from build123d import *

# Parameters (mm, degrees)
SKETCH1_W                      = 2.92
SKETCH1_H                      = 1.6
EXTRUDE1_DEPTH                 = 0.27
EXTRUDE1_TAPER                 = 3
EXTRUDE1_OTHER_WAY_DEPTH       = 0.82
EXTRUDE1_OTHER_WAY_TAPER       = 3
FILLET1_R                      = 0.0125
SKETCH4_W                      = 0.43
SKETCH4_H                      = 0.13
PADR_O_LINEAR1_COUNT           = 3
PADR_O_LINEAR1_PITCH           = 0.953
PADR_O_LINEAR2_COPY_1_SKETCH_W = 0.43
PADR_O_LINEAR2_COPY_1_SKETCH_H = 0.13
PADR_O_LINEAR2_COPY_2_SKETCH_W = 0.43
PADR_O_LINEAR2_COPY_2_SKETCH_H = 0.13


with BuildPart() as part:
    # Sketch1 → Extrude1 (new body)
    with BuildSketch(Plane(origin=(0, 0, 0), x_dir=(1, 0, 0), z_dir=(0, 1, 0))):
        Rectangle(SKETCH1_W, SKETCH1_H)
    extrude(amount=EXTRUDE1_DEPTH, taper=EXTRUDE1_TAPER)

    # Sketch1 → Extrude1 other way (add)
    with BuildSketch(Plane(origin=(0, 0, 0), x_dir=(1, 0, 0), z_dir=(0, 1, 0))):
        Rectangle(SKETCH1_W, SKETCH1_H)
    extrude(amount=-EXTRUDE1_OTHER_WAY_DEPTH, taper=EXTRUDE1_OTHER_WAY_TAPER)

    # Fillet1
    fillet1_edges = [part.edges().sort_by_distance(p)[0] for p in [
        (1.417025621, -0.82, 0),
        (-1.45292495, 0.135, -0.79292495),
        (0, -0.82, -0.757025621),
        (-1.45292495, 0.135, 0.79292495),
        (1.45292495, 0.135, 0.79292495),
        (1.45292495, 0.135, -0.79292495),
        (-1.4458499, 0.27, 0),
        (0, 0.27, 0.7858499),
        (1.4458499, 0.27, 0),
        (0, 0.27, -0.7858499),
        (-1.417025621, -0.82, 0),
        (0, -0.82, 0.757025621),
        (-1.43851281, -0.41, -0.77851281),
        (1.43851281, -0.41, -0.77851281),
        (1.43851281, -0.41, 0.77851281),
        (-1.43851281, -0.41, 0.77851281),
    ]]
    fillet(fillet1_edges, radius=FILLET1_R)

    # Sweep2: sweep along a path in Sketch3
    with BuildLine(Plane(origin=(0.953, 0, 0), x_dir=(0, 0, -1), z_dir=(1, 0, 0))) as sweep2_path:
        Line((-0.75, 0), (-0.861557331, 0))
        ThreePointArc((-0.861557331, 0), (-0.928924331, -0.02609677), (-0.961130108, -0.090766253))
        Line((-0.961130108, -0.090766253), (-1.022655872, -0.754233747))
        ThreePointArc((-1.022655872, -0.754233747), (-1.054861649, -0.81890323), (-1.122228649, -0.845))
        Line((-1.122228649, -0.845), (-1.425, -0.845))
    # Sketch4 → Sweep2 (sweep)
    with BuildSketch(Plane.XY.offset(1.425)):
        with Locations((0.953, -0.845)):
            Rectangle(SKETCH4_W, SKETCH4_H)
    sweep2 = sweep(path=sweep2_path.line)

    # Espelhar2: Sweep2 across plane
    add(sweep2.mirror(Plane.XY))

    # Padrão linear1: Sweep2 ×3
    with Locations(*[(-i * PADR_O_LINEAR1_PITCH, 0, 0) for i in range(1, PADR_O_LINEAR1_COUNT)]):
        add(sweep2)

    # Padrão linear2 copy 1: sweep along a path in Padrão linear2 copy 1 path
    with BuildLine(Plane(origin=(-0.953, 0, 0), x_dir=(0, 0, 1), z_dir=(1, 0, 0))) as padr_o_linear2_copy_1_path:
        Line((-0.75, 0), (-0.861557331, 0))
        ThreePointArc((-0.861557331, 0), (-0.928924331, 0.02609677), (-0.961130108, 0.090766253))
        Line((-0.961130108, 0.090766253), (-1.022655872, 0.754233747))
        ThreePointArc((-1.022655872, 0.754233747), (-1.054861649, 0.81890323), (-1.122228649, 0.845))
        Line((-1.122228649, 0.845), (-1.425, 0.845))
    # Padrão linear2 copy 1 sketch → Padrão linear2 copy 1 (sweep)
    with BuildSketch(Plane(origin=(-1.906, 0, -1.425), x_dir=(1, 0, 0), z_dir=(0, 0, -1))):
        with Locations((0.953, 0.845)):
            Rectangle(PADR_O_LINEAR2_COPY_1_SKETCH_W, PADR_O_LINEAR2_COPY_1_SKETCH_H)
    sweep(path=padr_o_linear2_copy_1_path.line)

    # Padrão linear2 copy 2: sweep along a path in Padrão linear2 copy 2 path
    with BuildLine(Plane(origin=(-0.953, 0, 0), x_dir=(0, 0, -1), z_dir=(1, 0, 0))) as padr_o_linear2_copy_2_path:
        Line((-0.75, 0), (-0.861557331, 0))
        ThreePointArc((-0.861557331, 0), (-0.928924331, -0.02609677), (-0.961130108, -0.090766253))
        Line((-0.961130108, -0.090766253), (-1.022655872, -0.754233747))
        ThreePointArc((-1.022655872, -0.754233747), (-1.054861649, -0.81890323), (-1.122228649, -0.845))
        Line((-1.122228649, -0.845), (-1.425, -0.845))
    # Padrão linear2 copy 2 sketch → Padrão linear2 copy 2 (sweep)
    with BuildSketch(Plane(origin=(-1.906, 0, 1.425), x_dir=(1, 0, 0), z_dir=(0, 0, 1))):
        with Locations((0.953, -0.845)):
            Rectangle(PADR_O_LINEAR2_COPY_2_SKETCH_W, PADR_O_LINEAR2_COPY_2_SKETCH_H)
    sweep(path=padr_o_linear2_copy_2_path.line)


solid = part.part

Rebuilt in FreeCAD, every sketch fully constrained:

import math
import FreeCAD as App
import Part
import Sketcher
from FreeCAD import Vector
Q = App.Units.Quantity


def add_polygon(sketch, points):
    """Adds a closed chain of lines whose ends are joined by coincident constraints."""
    first, n = sketch.GeometryCount, len(points)
    for a, b in zip(points, points[1:] + points[:1]):
        sketch.addGeometry(Part.LineSegment(App.Vector(*a, 0), App.Vector(*b, 0)), False)
    for i in range(n):
        sketch.addConstraint(Sketcher.Constraint("Coincident", first + i, 2, first + (i + 1) % n, 1))

doc = App.newDocument("Part")
body = doc.addObject("PartDesign::Body", "Body")

# Sketch on XZ plane
sketch1 = doc.addObject("Sketcher::SketchObject", "Sketch")
body.addObject(sketch1)
sketch1.AttachmentSupport = (doc.XZ_Plane, [""])
sketch1.MapMode = "FlatFace"
add_polygon(sketch1, [(-1.5, -0.8), (-1.5, 0.8), (1.5, 0.8), (1.5, -0.8)])  # lines 0-3
sketch1.addConstraint(Sketcher.Constraint("Vertical", 0))
sketch1.addConstraint(Sketcher.Constraint("Horizontal", 1))
sketch1.addConstraint(Sketcher.Constraint("Vertical", 2))
sketch1.addConstraint(Sketcher.Constraint("Horizontal", 3))
sketch1.addConstraint(Sketcher.Constraint("Symmetric", 0, 2, 2, 2, -1, 1))
sketch1.addConstraint(Sketcher.Constraint("DistanceY", 0, 1, 0, 2, Q("1.6 mm")))
sketch1.addConstraint(Sketcher.Constraint("DistanceX", 1, 1, 1, 2, Q("2.92 mm")))
pad1 = doc.addObject("PartDesign::Pad", "Pad")
body.addObject(pad1)
pad1.Profile = sketch1
pad1.Length = 0.27
pad1.Reversed = True
pad1.TaperAngle = -3

# Sketch on XZ plane
sketch2 = doc.addObject("Sketcher::SketchObject", "Sketch001")
body.addObject(sketch2)
sketch2.AttachmentSupport = (doc.XZ_Plane, [""])
sketch2.MapMode = "FlatFace"
add_polygon(sketch2, [(-1.5, -0.8), (-1.5, 0.8), (1.5, 0.8), (1.5, -0.8)])  # lines 0-3
sketch2.addConstraint(Sketcher.Constraint("Vertical", 0))
sketch2.addConstraint(Sketcher.Constraint("Horizontal", 1))
sketch2.addConstraint(Sketcher.Constraint("Vertical", 2))
sketch2.addConstraint(Sketcher.Constraint("Horizontal", 3))
sketch2.addConstraint(Sketcher.Constraint("Symmetric", 0, 2, 2, 2, -1, 1))
sketch2.addConstraint(Sketcher.Constraint("DistanceY", 0, 1, 0, 2, Q("1.6 mm")))
sketch2.addConstraint(Sketcher.Constraint("DistanceX", 1, 1, 1, 2, Q("2.92 mm")))
pad2 = doc.addObject("PartDesign::Pad", "Pad001")
body.addObject(pad2)
pad2.Profile = sketch2
pad2.Length = 0.82
pad2.TaperAngle = -3
doc.recompute()

fillet = doc.addObject("PartDesign::Fillet", "Fillet")
body.addObject(fillet)
fillet.Base = (pad2, ["Edge1"])
fillet.UseAllEdges = True
fillet.Radius = 0.0125

# Sketch on XY plane
sketch3 = doc.addObject("Sketcher::SketchObject", "Sketch002")
body.addObject(sketch3)
sketch3.AttachmentSupport = (doc.XY_Plane, [""])
sketch3.MapMode = "FlatFace"
sketch3.AttachmentOffset = App.Placement(Vector(0, 0, 1.425), App.Rotation())
add_polygon(sketch3, [(0.74, -0.78), (0.74, -0.91), (1.17, -0.91), (1.17, -0.78)])  # lines 0-3
sketch3.addConstraint(Sketcher.Constraint("Vertical", 0))
sketch3.addConstraint(Sketcher.Constraint("Horizontal", 1))
sketch3.addConstraint(Sketcher.Constraint("Vertical", 2))
sketch3.addConstraint(Sketcher.Constraint("Horizontal", 3))
sketch3.addConstraint(Sketcher.Constraint("DistanceX", 1, 1, 1, 2, Q("0.43 mm")))
sketch3.addConstraint(Sketcher.Constraint("DistanceY", 0, 2, 0, 1, Q("0.13 mm")))
sketch3.addConstraint(Sketcher.Constraint("DistanceY", 0, 2, -1, 1, Q("0.91 mm")))
sketch3.addConstraint(Sketcher.Constraint("DistanceX", -1, 1, 0, 2, Q("0.738 mm")))

# Sketch on YZ plane
sketch4 = doc.addObject("Sketcher::SketchObject", "Sketch003")
body.addObject(sketch4)
sketch4.AttachmentSupport = (doc.YZ_Plane, [""])
sketch4.MapMode = "FlatFace"
sketch4.AttachmentOffset = App.Placement(Vector(0, 0, 0.953), App.Rotation())
sketch4.addGeometry(Part.LineSegment(Vector(0, 0.75, 0), Vector(0, 0.86, 0)), False)
sketch4.addGeometry(Part.ArcOfCircle(Part.Circle(Vector(-0.1, 0.86, 0), Vector(0, 0, 1), 0.1), math.radians(0), math.radians(85)), False)
sketch4.addGeometry(Part.LineSegment(Vector(-0.09, 0.96, 0), Vector(-0.75, 1.02, 0)), False)
sketch4.addGeometry(Part.ArcOfCircle(Part.Circle(Vector(-0.75, 1.12, 0), Vector(0, 0, 1), 0.1), math.radians(180), math.radians(265)), False)
sketch4.addGeometry(Part.LineSegment(Vector(-0.84, 1.12, 0), Vector(-0.84, 1.43, 0)), False)
sketch4.addConstraint(Sketcher.Constraint("Tangent", 0, 2, 1, 1))
sketch4.addConstraint(Sketcher.Constraint("Tangent", 1, 2, 2, 1))
sketch4.addConstraint(Sketcher.Constraint("Tangent", 2, 2, 3, 2))
sketch4.addConstraint(Sketcher.Constraint("Tangent", 3, 1, 4, 1))
sketch4.addConstraint(Sketcher.Constraint("Vertical", 0))
sketch4.addConstraint(Sketcher.Constraint("Vertical", 4))
sketch4.addConstraint(Sketcher.Constraint("Equal", 1, 3))
sketch4.addConstraint(Sketcher.Constraint("PointOnObject", 0, 1, -2))
sketch4.addConstraint(Sketcher.Constraint("Radius", 1, Q("0.1 mm")))
sketch4.addConstraint(Sketcher.Constraint("DistanceY", -1, 1, 0, 1, Q("0.75 mm")))
sketch4.addConstraint(Sketcher.Constraint("DistanceX", 3, 3, -1, 1, Q("0.745 mm")))
sketch4.addConstraint(Sketcher.Constraint("DistanceY", -1, 1, 4, 2, Q("1.425 mm")))
sketch4.addConstraint(Sketcher.Constraint("DistanceY", 4, 1, 4, 2, Q("0.302771 mm")))
sketch4.addConstraint(Sketcher.Constraint("DistanceY", 1, 2, 3, 3, Q("0.161099 mm")))
doc.recompute()

additivepipe = doc.addObject("PartDesign::AdditivePipe", "AdditivePipe")
body.addObject(additivepipe)
additivepipe.Profile = sketch3
additivepipe.Spine = (sketch4, ["Edge1", "Edge2", "Edge3", "Edge4", "Edge5"])
doc.recompute()

mirrored = doc.addObject("PartDesign::Mirrored", "Mirrored")
body.addObject(mirrored)
mirrored.Originals = [additivepipe]
mirrored.MirrorPlane = (doc.XY_Plane, [""])
body.Tip = mirrored
doc.recompute()

linearpattern = doc.addObject("PartDesign::LinearPattern", "LinearPattern")
body.addObject(linearpattern)
linearpattern.Originals = [additivepipe]
linearpattern.Direction = (doc.X_Axis, [""])
linearpattern.Mode = "offset"
linearpattern.Offset = 0.953
linearpattern.Occurrences = 3
linearpattern.Reversed = True
body.Tip = linearpattern

# Sketch on XY plane
sketch5 = doc.addObject("Sketcher::SketchObject", "Sketch004")
body.addObject(sketch5)
sketch5.AttachmentSupport = (doc.XY_Plane, [""])
sketch5.MapMode = "FlatFace"
sketch5.AttachmentOffset = App.Placement(Vector(0, 0, -1.425), App.Rotation())
add_polygon(sketch5, [(-1.17, -0.91), (-1.17, -0.78), (-0.74, -0.78), (-0.74, -0.91)])  # lines 0-3
sketch5.addConstraint(Sketcher.Constraint("Vertical", 0))
sketch5.addConstraint(Sketcher.Constraint("Horizontal", 1))
sketch5.addConstraint(Sketcher.Constraint("Vertical", 2))
sketch5.addConstraint(Sketcher.Constraint("Horizontal", 3))
sketch5.addConstraint(Sketcher.Constraint("DistanceX", 1, 1, 1, 2, Q("0.43 mm")))
sketch5.addConstraint(Sketcher.Constraint("DistanceY", 0, 1, 0, 2, Q("0.13 mm")))
sketch5.addConstraint(Sketcher.Constraint("DistanceY", 0, 2, -1, 1, Q("0.78 mm")))
sketch5.addConstraint(Sketcher.Constraint("DistanceX", 0, 2, -1, 1, Q("1.168 mm")))

# Sketch on YZ plane
sketch6 = doc.addObject("Sketcher::SketchObject", "Sketch005")
body.addObject(sketch6)
sketch6.AttachmentSupport = (doc.YZ_Plane, [""])
sketch6.MapMode = "FlatFace"
sketch6.AttachmentOffset = App.Placement(Vector(0, 0, -0.953), App.Rotation())
sketch6.addGeometry(Part.LineSegment(Vector(0, -0.75, 0), Vector(0, -0.86, 0)), False)
sketch6.addGeometry(Part.ArcOfCircle(Part.Circle(Vector(-0.1, -0.86, 0), Vector(0, 0, 1), 0.1), math.radians(-85), math.radians(0)), False)
sketch6.addGeometry(Part.LineSegment(Vector(-0.09, -0.96, 0), Vector(-0.75, -1.02, 0)), False)
sketch6.addGeometry(Part.ArcOfCircle(Part.Circle(Vector(-0.75, -1.12, 0), Vector(0, 0, 1), 0.1), math.radians(95), math.radians(180)), False)
sketch6.addGeometry(Part.LineSegment(Vector(-0.84, -1.12, 0), Vector(-0.84, -1.43, 0)), False)
sketch6.addConstraint(Sketcher.Constraint("Tangent", 0, 2, 1, 2))
sketch6.addConstraint(Sketcher.Constraint("Tangent", 1, 1, 2, 1))
sketch6.addConstraint(Sketcher.Constraint("Tangent", 2, 2, 3, 1))
sketch6.addConstraint(Sketcher.Constraint("Tangent", 3, 2, 4, 1))
sketch6.addConstraint(Sketcher.Constraint("Vertical", 0))
sketch6.addConstraint(Sketcher.Constraint("Vertical", 4))
sketch6.addConstraint(Sketcher.Constraint("Equal", 1, 3))
sketch6.addConstraint(Sketcher.Constraint("PointOnObject", 0, 1, -2))
sketch6.addConstraint(Sketcher.Constraint("Radius", 1, Q("0.1 mm")))
sketch6.addConstraint(Sketcher.Constraint("DistanceY", 0, 1, -1, 1, Q("0.75 mm")))
sketch6.addConstraint(Sketcher.Constraint("DistanceX", 3, 3, -1, 1, Q("0.745 mm")))
sketch6.addConstraint(Sketcher.Constraint("DistanceY", 4, 2, -1, 1, Q("1.425 mm")))
sketch6.addConstraint(Sketcher.Constraint("DistanceY", 4, 2, 4, 1, Q("0.302771 mm")))
sketch6.addConstraint(Sketcher.Constraint("DistanceY", 3, 3, 1, 1, Q("0.161099 mm")))
doc.recompute()

additivepipe2 = doc.addObject("PartDesign::AdditivePipe", "AdditivePipe001")
body.addObject(additivepipe2)
additivepipe2.Profile = sketch5
additivepipe2.Spine = (sketch6, ["Edge1", "Edge2", "Edge3", "Edge4", "Edge5"])

# Sketch on XY plane
sketch7 = doc.addObject("Sketcher::SketchObject", "Sketch006")
body.addObject(sketch7)
sketch7.AttachmentSupport = (doc.XY_Plane, [""])
sketch7.MapMode = "FlatFace"
sketch7.AttachmentOffset = App.Placement(Vector(0, 0, 1.425), App.Rotation())
add_polygon(sketch7, [(-1.17, -0.78), (-1.17, -0.91), (-0.74, -0.91), (-0.74, -0.78)])  # lines 0-3
sketch7.addConstraint(Sketcher.Constraint("Vertical", 0))
sketch7.addConstraint(Sketcher.Constraint("Horizontal", 1))
sketch7.addConstraint(Sketcher.Constraint("Vertical", 2))
sketch7.addConstraint(Sketcher.Constraint("Horizontal", 3))
sketch7.addConstraint(Sketcher.Constraint("DistanceX", 1, 1, 1, 2, Q("0.43 mm")))
sketch7.addConstraint(Sketcher.Constraint("DistanceY", 0, 2, 0, 1, Q("0.13 mm")))
sketch7.addConstraint(Sketcher.Constraint("DistanceY", 0, 2, -1, 1, Q("0.91 mm")))
sketch7.addConstraint(Sketcher.Constraint("DistanceX", 0, 2, -1, 1, Q("1.168 mm")))

# Sketch on YZ plane
sketch8 = doc.addObject("Sketcher::SketchObject", "Sketch007")
body.addObject(sketch8)
sketch8.AttachmentSupport = (doc.YZ_Plane, [""])
sketch8.MapMode = "FlatFace"
sketch8.AttachmentOffset = App.Placement(Vector(0, 0, -0.953), App.Rotation())
sketch8.addGeometry(Part.LineSegment(Vector(0, 0.75, 0), Vector(0, 0.86, 0)), False)
sketch8.addGeometry(Part.ArcOfCircle(Part.Circle(Vector(-0.1, 0.86, 0), Vector(0, 0, 1), 0.1), math.radians(0), math.radians(85)), False)
sketch8.addGeometry(Part.LineSegment(Vector(-0.09, 0.96, 0), Vector(-0.75, 1.02, 0)), False)
sketch8.addGeometry(Part.ArcOfCircle(Part.Circle(Vector(-0.75, 1.12, 0), Vector(0, 0, 1), 0.1), math.radians(180), math.radians(265)), False)
sketch8.addGeometry(Part.LineSegment(Vector(-0.84, 1.12, 0), Vector(-0.84, 1.43, 0)), False)
sketch8.addConstraint(Sketcher.Constraint("Tangent", 0, 2, 1, 1))
sketch8.addConstraint(Sketcher.Constraint("Tangent", 1, 2, 2, 1))
sketch8.addConstraint(Sketcher.Constraint("Tangent", 2, 2, 3, 2))
sketch8.addConstraint(Sketcher.Constraint("Tangent", 3, 1, 4, 1))
sketch8.addConstraint(Sketcher.Constraint("Vertical", 0))
sketch8.addConstraint(Sketcher.Constraint("Vertical", 4))
sketch8.addConstraint(Sketcher.Constraint("Equal", 1, 3))
sketch8.addConstraint(Sketcher.Constraint("PointOnObject", 0, 1, -2))
sketch8.addConstraint(Sketcher.Constraint("Radius", 1, Q("0.1 mm")))
sketch8.addConstraint(Sketcher.Constraint("DistanceY", -1, 1, 0, 1, Q("0.75 mm")))
sketch8.addConstraint(Sketcher.Constraint("DistanceX", 3, 3, -1, 1, Q("0.745 mm")))
sketch8.addConstraint(Sketcher.Constraint("DistanceY", -1, 1, 4, 2, Q("1.425 mm")))
sketch8.addConstraint(Sketcher.Constraint("DistanceY", 4, 1, 4, 2, Q("0.302771 mm")))
sketch8.addConstraint(Sketcher.Constraint("DistanceY", 1, 2, 3, 3, Q("0.161099 mm")))
doc.recompute()

additivepipe3 = doc.addObject("PartDesign::AdditivePipe", "AdditivePipe002")
body.addObject(additivepipe3)
additivepipe3.Profile = sketch7
additivepipe3.Spine = (sketch8, ["Edge1", "Edge2", "Edge3", "Edge4", "Edge5"])

doc.recompute()
